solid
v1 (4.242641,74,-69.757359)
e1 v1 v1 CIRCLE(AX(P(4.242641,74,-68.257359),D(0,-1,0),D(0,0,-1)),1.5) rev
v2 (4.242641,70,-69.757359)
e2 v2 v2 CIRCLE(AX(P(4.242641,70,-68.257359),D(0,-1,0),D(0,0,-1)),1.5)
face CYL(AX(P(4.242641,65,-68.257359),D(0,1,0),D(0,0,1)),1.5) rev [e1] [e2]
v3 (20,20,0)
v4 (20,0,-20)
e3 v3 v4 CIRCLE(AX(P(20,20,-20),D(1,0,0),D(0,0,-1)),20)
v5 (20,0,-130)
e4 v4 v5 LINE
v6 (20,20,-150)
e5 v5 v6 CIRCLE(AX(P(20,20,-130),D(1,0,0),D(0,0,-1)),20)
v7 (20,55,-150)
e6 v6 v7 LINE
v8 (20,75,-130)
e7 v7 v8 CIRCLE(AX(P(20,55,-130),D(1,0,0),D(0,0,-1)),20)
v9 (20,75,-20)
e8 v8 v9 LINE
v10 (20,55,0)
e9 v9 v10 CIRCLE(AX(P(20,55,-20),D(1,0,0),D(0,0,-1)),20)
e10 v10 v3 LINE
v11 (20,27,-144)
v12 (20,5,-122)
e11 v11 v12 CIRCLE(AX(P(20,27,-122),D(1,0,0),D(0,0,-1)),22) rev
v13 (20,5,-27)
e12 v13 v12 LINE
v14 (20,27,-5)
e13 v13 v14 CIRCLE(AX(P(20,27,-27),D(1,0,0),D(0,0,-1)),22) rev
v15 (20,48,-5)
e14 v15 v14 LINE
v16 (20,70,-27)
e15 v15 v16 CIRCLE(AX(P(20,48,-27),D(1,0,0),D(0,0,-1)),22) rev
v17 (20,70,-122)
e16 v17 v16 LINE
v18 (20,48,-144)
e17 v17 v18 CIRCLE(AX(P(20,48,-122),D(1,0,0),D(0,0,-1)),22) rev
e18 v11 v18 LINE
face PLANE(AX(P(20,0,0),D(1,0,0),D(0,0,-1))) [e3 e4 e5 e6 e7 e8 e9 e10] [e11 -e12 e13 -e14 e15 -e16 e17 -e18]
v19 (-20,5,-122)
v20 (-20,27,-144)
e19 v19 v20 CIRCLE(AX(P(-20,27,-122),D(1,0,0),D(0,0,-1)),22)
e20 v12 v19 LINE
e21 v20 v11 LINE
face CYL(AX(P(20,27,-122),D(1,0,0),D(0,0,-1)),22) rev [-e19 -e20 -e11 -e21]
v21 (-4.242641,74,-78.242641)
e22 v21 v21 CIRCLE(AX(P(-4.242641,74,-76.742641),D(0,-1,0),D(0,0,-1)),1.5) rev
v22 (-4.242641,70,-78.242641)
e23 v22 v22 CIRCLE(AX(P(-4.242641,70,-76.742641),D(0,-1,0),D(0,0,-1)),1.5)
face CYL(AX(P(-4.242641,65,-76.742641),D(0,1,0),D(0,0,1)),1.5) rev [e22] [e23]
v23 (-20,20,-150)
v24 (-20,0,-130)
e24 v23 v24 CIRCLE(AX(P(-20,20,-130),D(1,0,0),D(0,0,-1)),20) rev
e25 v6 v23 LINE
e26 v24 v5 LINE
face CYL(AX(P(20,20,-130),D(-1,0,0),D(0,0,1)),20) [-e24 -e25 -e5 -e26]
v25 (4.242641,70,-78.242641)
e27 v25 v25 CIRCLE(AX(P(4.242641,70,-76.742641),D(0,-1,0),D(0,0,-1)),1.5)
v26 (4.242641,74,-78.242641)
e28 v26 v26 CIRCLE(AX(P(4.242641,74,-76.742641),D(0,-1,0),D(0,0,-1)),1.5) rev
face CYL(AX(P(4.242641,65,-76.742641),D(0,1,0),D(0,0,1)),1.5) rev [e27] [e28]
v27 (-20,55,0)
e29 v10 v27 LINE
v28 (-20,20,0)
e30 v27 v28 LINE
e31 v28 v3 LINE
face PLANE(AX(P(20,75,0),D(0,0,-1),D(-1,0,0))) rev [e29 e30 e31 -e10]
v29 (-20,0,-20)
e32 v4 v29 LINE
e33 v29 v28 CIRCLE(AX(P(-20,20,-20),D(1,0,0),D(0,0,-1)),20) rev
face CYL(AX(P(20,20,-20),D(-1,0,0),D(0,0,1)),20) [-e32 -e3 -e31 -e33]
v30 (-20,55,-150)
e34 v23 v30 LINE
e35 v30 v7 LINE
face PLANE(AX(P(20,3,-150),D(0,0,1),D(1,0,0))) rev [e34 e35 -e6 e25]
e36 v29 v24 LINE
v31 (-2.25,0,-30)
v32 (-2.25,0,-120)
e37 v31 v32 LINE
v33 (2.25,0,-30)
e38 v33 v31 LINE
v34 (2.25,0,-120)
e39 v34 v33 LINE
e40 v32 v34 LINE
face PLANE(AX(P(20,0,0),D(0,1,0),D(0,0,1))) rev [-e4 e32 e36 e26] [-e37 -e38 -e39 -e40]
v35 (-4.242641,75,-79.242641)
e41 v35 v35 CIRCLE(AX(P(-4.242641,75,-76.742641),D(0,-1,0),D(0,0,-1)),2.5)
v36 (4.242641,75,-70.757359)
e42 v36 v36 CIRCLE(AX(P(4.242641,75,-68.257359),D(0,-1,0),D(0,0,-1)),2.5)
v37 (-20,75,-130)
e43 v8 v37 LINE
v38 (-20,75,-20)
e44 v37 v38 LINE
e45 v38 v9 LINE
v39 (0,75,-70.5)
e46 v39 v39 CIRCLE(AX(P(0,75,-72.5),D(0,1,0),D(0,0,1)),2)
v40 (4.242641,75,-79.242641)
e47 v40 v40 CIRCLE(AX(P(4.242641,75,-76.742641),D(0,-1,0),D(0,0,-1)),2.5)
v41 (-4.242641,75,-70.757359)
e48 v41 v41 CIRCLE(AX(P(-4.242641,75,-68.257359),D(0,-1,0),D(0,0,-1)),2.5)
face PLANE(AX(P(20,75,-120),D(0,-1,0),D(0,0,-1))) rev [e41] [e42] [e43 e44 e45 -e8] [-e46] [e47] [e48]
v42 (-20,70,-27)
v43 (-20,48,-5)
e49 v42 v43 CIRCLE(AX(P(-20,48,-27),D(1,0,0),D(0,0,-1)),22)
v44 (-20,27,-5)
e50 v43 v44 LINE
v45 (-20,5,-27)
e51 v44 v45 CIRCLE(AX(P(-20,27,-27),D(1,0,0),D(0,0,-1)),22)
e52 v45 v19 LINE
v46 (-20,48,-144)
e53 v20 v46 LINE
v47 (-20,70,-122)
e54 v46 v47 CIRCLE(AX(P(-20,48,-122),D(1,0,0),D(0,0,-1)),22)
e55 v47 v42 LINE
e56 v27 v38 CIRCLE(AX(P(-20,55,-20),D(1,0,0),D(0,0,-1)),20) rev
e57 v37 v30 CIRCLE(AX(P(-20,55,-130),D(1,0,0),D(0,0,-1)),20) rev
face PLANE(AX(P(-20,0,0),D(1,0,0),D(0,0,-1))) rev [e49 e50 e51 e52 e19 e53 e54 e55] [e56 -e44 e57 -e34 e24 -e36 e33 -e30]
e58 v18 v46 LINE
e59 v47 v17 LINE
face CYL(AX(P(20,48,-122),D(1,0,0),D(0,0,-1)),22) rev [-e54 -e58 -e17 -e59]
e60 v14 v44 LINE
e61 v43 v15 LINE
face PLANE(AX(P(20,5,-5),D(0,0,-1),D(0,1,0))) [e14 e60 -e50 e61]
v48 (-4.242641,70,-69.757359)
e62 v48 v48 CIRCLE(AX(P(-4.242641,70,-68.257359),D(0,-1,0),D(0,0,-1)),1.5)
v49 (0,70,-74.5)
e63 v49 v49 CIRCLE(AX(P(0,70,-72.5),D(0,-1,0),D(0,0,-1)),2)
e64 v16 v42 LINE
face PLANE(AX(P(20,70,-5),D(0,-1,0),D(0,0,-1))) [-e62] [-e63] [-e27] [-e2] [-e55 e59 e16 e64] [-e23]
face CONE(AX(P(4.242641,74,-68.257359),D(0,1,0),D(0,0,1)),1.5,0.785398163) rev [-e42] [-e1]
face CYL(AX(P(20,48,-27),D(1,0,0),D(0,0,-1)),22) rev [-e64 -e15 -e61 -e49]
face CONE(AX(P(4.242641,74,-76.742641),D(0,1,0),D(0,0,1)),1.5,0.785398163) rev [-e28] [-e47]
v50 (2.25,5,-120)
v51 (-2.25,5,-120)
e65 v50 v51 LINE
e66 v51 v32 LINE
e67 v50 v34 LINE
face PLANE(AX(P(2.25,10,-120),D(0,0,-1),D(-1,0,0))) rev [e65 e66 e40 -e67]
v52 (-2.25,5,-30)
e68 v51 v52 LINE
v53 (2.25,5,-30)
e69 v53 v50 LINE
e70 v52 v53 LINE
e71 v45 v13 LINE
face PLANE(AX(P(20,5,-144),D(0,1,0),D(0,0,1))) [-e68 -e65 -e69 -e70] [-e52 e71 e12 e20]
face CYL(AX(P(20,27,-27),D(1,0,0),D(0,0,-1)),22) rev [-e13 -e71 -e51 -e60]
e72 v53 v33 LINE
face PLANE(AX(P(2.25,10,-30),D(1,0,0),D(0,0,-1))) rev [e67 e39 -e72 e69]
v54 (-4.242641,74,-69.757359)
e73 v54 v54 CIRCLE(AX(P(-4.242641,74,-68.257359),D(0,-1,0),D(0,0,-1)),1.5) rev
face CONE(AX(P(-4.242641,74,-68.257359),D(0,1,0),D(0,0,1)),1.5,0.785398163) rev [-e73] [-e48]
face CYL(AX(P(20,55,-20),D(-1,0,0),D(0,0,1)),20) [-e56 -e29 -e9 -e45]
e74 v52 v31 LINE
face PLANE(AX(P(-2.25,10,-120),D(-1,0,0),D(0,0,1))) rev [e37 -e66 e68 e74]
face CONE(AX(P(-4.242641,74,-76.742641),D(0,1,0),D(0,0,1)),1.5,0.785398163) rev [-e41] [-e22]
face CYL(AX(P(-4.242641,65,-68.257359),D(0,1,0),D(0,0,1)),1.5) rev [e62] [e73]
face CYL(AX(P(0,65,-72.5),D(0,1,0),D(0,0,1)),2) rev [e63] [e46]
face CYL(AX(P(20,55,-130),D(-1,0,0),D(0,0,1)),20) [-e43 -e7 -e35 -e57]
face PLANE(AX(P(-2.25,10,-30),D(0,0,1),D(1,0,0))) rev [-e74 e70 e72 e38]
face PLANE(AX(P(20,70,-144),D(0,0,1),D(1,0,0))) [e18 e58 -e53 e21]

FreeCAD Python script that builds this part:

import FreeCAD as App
import Part
import Sketcher
from FreeCAD import Vector


def edges_at(feature, points):
    """Names of the edges that pass closest to the given points."""
    edges = feature.Shape.Edges
    near = lambda p: min(range(len(edges)), key=lambda i: edges[i].distToShape(Part.Vertex(*p))[0])
    return sorted({f"Edge{near(p) + 1}" for p in points})

doc = App.newDocument("Part")
body = doc.addObject("PartDesign::Body", "Body")

sketch1 = body.newObject("Sketcher::SketchObject", "Sketch")
sketch1.AttachmentSupport = (doc.getObject("YZ_Plane"), [""])
sketch1.MapMode = "FlatFace"
sketch1.addGeometry([
    Part.LineSegment(Vector(0, 0, 0), Vector(0, -150, 0)),
    Part.LineSegment(Vector(0, -150, 0), Vector(75, -150, 0)),
    Part.LineSegment(Vector(75, -150, 0), Vector(75, 0, 0)),
    Part.LineSegment(Vector(75, 0, 0), Vector(0, 0, 0)),
    Part.LineSegment(Vector(70, -144, 0), Vector(5, -144, 0)),
    Part.LineSegment(Vector(5, -144, 0), Vector(5, -5, 0)),
    Part.LineSegment(Vector(5, -5, 0), Vector(70, -5, 0)),
    Part.LineSegment(Vector(70, -5, 0), Vector(70, -144, 0)),
], False)
sketch1.addConstraint([
    Sketcher.Constraint("Coincident", 0, 2, 1, 1),
    Sketcher.Constraint("Coincident", 1, 2, 2, 1),
    Sketcher.Constraint("Coincident", 2, 2, 3, 1),
    Sketcher.Constraint("Coincident", 3, 2, 0, 1),
    Sketcher.Constraint("Coincident", 4, 2, 5, 1),
    Sketcher.Constraint("Coincident", 5, 2, 6, 1),
    Sketcher.Constraint("Coincident", 6, 2, 7, 1),
    Sketcher.Constraint("Coincident", 7, 2, 4, 1),
    Sketcher.Constraint("Vertical", 0),
    Sketcher.Constraint("Horizontal", 1),
    Sketcher.Constraint("Vertical", 2),
    Sketcher.Constraint("Horizontal", 3),
    Sketcher.Constraint("Horizontal", 4),
    Sketcher.Constraint("Vertical", 5),
    Sketcher.Constraint("Horizontal", 6),
    Sketcher.Constraint("Vertical", 7),
    Sketcher.Constraint("Coincident", 3, 2, -1, 1),
    Sketcher.Constraint("DistanceX", 1, 1, 1, 2, 75.0),
    Sketcher.Constraint("DistanceX", 4, 2, 4, 1, 65.0),
    Sketcher.Constraint("DistanceY", 0, 2, 0, 1, 150.0),
    Sketcher.Constraint("DistanceY", 5, 1, 5, 2, 139.0),
    Sketcher.Constraint("DistanceX", -1, 1, 4, 2, 5.0),
    Sketcher.Constraint("DistanceY", 4, 2, -1, 1, 144.0),
])
pad1 = body.newObject("PartDesign::Pad", "Pad")
pad1.Profile = sketch1
pad1.Length = 40
pad1.Midplane = True

sketch2 = body.newObject("Sketcher::SketchObject", "Sketch001")
sketch2.AttachmentSupport = (doc.getObject("XZ_Plane"), [""])
sketch2.MapMode = "FlatFace"
sketch2.addGeometry([
    Part.LineSegment(Vector(-2.25, -30, 0), Vector(-2.25, -120, 0)),
    Part.LineSegment(Vector(-2.25, -120, 0), Vector(2.25, -120, 0)),
    Part.LineSegment(Vector(2.25, -120, 0), Vector(2.25, -30, 0)),
    Part.LineSegment(Vector(2.25, -30, 0), Vector(-2.25, -30, 0)),
], False)
sketch2.addConstraint([
    Sketcher.Constraint("Coincident", 0, 2, 1, 1),
    Sketcher.Constraint("Coincident", 1, 2, 2, 1),
    Sketcher.Constraint("Coincident", 2, 2, 3, 1),
    Sketcher.Constraint("Coincident", 3, 2, 0, 1),
    Sketcher.Constraint("Vertical", 0),
    Sketcher.Constraint("Horizontal", 1),
    Sketcher.Constraint("Vertical", 2),
    Sketcher.Constraint("Horizontal", 3),
    Sketcher.Constraint("DistanceY", 0, 2, 0, 1, 90.0),
    Sketcher.Constraint("DistanceX", 1, 1, 1, 2, 4.5),
    Sketcher.Constraint("DistanceY", 0, 2, -1, 1, 120.0),
    Sketcher.Constraint("DistanceX", 0, 2, -1, 1, 2.25),
])
pocket1 = body.newObject("PartDesign::Pocket", "Pocket")
pocket1.Profile = sketch2
pocket1.Length = 10

sketch3 = body.newObject("Sketcher::SketchObject", "Sketch002")
sketch3.AttachmentSupport = (doc.getObject("XZ_Plane"), [""])
sketch3.MapMode = "FlatFace"
sketch3.AttachmentOffset = App.Placement(Vector(0, 0, -75), App.Rotation())
sketch3.addGeometry([
    Part.Circle(Vector(-4.242641, -76.742641, 0), Vector(0, 0, 1), 1.5),
    Part.Circle(Vector(4.242641, -76.742641, 0), Vector(0, 0, 1), 1.5),
    Part.Circle(Vector(4.242641, -68.257359, 0), Vector(0, 0, 1), 1.5),
    Part.Circle(Vector(-4.242641, -68.257359, 0), Vector(0, 0, 1), 1.5),
    Part.Circle(Vector(0, -72.5, 0), Vector(0, 0, 1), 2),
], False)
sketch3.addConstraint([
    Sketcher.Constraint("Equal", 0, 1),
    Sketcher.Constraint("Equal", 1, 2),
    Sketcher.Constraint("Equal", 2, 3),
    Sketcher.Constraint("Symmetric", 0, 3, 1, 3, -2),
    Sketcher.Constraint("Symmetric", 2, 3, 3, 3, -2),
    Sketcher.Constraint("PointOnObject", 4, 3, -2),
    Sketcher.Constraint("Vertical", 1, 3, 2, 3),
    Sketcher.Constraint("Diameter", 0, 3.0),
    Sketcher.Constraint("Diameter", 4, 4.0),
    Sketcher.Constraint("DistanceY", 4, 3, -1, 1, 72.5),
    Sketcher.Constraint("DistanceX", 0, 3, -1, 1, 4.242641),
    Sketcher.Constraint("DistanceY", 0, 3, -1, 1, 76.742641),
    Sketcher.Constraint("DistanceY", 2, 3, -1, 1, 68.257359),
])
pocket2 = body.newObject("PartDesign::Pocket", "Pocket001")
pocket2.Profile = sketch3
pocket2.Length = 10
pocket2.Reversed = True
doc.recompute()

chamfer = body.newObject("PartDesign::Chamfer", "Chamfer")
chamfer.Base = (pocket2, edges_at(pocket2, [
    (-4.243, 75, -78.243),
    (4.243, 75, -78.243),
    (4.243, 75, -69.757),
    (-4.243, 75, -69.757),
]))
chamfer.Size = 1
doc.recompute()

fillet = body.newObject("PartDesign::Fillet", "Fillet")
fillet.Base = (chamfer, edges_at(chamfer, [
    (0, 70, -5),
    (0, 5, -5),
    (0, 5, -144),
    (0, 70, -144),
]))
fillet.Radius = 22
doc.recompute()

fillet2 = body.newObject("PartDesign::Fillet", "Fillet001")
fillet2.Base = (fillet, edges_at(fillet, [
    (0, 75, 0),
    (0, 75, -150),
    (0, 0, -150),
    (0, 0, 0),
]))
fillet2.Radius = 20

doc.recompute()
